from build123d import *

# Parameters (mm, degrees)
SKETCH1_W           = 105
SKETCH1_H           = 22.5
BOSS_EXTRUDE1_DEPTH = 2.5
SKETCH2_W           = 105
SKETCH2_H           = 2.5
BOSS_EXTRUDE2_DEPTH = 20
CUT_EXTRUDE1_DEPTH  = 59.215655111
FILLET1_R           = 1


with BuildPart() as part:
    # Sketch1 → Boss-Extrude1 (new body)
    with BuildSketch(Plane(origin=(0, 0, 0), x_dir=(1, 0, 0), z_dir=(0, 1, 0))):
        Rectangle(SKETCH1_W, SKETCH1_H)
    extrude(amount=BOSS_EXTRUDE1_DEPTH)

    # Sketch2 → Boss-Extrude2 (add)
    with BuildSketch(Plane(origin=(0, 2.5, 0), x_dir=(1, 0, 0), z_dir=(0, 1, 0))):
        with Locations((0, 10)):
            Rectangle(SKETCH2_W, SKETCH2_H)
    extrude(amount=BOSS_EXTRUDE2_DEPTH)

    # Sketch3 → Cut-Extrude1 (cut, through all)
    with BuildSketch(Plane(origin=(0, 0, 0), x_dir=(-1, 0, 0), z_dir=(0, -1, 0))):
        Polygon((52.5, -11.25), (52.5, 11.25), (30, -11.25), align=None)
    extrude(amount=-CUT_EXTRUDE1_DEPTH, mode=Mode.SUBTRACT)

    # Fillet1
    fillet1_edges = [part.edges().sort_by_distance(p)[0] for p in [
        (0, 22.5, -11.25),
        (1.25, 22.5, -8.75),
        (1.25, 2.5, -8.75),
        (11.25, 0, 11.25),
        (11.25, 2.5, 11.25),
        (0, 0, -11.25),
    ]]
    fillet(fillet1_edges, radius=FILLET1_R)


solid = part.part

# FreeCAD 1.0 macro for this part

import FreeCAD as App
import Part
import Sketcher
Q = App.Units.Quantity


def edges_at(feature, points):
    """Names of the edges that pass closest to the given points."""
    edges = feature.Shape.Edges
    near = lambda p: min(range(len(edges)), key=lambda i: edges[i].distToShape(Part.Vertex(*p))[0])
    return sorted({f"Edge{near(p) + 1}" for p in points})

doc = App.newDocument("Part")
body = doc.addObject("PartDesign::Body", "Body")

# Sketch on XZ plane
sketch1 = doc.addObject("Sketcher::SketchObject", "Sketch")
body.addObject(sketch1)
sketch1.AttachmentSupport = (doc.XZ_Plane, [""])
sketch1.MapMode = "FlatFace"
sketch1.addGeometry(Part.LineSegment(App.Vector(-52, -11, 0), App.Vector(-52, 11, 0)), False)
sketch1.addGeometry(Part.LineSegment(App.Vector(-52, 11, 0), App.Vector(52, 11, 0)), False)
sketch1.addGeometry(Part.LineSegment(App.Vector(52, 11, 0), App.Vector(52, -11, 0)), False)
sketch1.addGeometry(Part.LineSegment(App.Vector(52, -11, 0), App.Vector(-52, -11, 0)), False)
sketch1.addConstraint(Sketcher.Constraint("Coincident", 0, 2, 1, 1))
sketch1.addConstraint(Sketcher.Constraint("Coincident", 1, 2, 2, 1))
sketch1.addConstraint(Sketcher.Constraint("Coincident", 2, 2, 3, 1))
sketch1.addConstraint(Sketcher.Constraint("Coincident", 3, 2, 0, 1))
sketch1.addConstraint(Sketcher.Constraint("Vertical", 0))
sketch1.addConstraint(Sketcher.Constraint("Horizontal", 1))
sketch1.addConstraint(Sketcher.Constraint("Vertical", 2))
sketch1.addConstraint(Sketcher.Constraint("Horizontal", 3))
sketch1.addConstraint(Sketcher.Constraint("Symmetric", 0, 2, 2, 2, -1, 1))
sketch1.addConstraint(Sketcher.Constraint("DistanceX", 1, 1, 1, 2, Q("105 mm")))
sketch1.addConstraint(Sketcher.Constraint("DistanceY", 0, 1, 0, 2, Q("22.5 mm")))
pad1 = doc.addObject("PartDesign::Pad", "Pad")
body.addObject(pad1)
pad1.Profile = sketch1
pad1.Length = 2.5
pad1.Reversed = True

# Sketch on XZ plane
sketch2 = doc.addObject("Sketcher::SketchObject", "Sketch001")
body.addObject(sketch2)
sketch2.AttachmentSupport = (doc.XZ_Plane, [""])
sketch2.MapMode = "FlatFace"
sketch2.AttachmentOffset = App.Placement(App.Vector(0, 0, -2.5), App.Rotation())
sketch2.addGeometry(Part.LineSegment(App.Vector(-52.5, -11.2, 0), App.Vector(-52.5, -8.8, 0)), False)
sketch2.addGeometry(Part.LineSegment(App.Vector(-52.5, -8.8, 0), App.Vector(52.5, -8.8, 0)), False)
sketch2.addGeometry(Part.LineSegment(App.Vector(52.5, -8.8, 0), App.Vector(52.5, -11.2, 0)), False)
sketch2.addGeometry(Part.LineSegment(App.Vector(52.5, -11.2, 0), App.Vector(-52.5, -11.2, 0)), False)
sketch2.addConstraint(Sketcher.Constraint("Coincident", 0, 2, 1, 1))
sketch2.addConstraint(Sketcher.Constraint("Coincident", 1, 2, 2, 1))
sketch2.addConstraint(Sketcher.Constraint("Coincident", 2, 2, 3, 1))
sketch2.addConstraint(Sketcher.Constraint("Coincident", 3, 2, 0, 1))
sketch2.addConstraint(Sketcher.Constraint("Vertical", 0))
sketch2.addConstraint(Sketcher.Constraint("Horizontal", 1))
sketch2.addConstraint(Sketcher.Constraint("Vertical", 2))
sketch2.addConstraint(Sketcher.Constraint("Horizontal", 3))
sketch2.addConstraint(Sketcher.Constraint("DistanceX", 1, 1, 1, 2, Q("105 mm")))
sketch2.addConstraint(Sketcher.Constraint("DistanceY", 0, 1, 0, 2, Q("2.5 mm")))
sketch2.addConstraint(Sketcher.Constraint("DistanceX", 0, 2, -1, 1, Q("52.5 mm")))
sketch2.addConstraint(Sketcher.Constraint("DistanceY", 0, 2, -1, 1, Q("8.75 mm")))
pad2 = doc.addObject("PartDesign::Pad", "Pad001")
body.addObject(pad2)
pad2.Profile = sketch2
pad2.Length = 20
pad2.Reversed = True

# Sketch on XZ plane
sketch3 = doc.addObject("Sketcher::SketchObject", "Sketch002")
body.addObject(sketch3)
sketch3.AttachmentSupport = (doc.XZ_Plane, [""])
sketch3.MapMode = "FlatFace"
sketch3.addGeometry(Part.LineSegment(App.Vector(-52, 11, 0), App.Vector(-52, -11, 0)), False)
sketch3.addGeometry(Part.LineSegment(App.Vector(-52, -11, 0), App.Vector(-30, 11, 0)), False)
sketch3.addGeometry(Part.LineSegment(App.Vector(-30, 11, 0), App.Vector(-52, 11, 0)), False)
sketch3.addConstraint(Sketcher.Constraint("Coincident", 0, 2, 1, 1))
sketch3.addConstraint(Sketcher.Constraint("Coincident", 1, 2, 2, 1))
sketch3.addConstraint(Sketcher.Constraint("Coincident", 2, 2, 0, 1))
sketch3.addConstraint(Sketcher.Constraint("Vertical", 0))
sketch3.addConstraint(Sketcher.Constraint("Horizontal", 2))
sketch3.addConstraint(Sketcher.Constraint("Equal", 2, 0))
sketch3.addConstraint(Sketcher.Constraint("DistanceX", 2, 2, 2, 1, Q("22.5 mm")))
sketch3.addConstraint(Sketcher.Constraint("DistanceX", 1, 2, -1, 1, Q("30 mm")))
sketch3.addConstraint(Sketcher.Constraint("DistanceY", 0, 2, -1, 1, Q("11.25 mm")))
pocket1 = doc.addObject("PartDesign::Pocket", "Pocket")
body.addObject(pocket1)
pocket1.Profile = sketch3
pocket1.Type = "ThroughAll"
doc.recompute()

fillet = doc.addObject("PartDesign::Fillet", "Fillet")
body.addObject(fillet)
fillet.Base = (pocket1, edges_at(pocket1, [
    (0, 22.5, -11.25),
    (1.25, 22.5, -8.75),
    (1.25, 2.5, -8.75),
    (11.25, 0, 11.25),
    (11.25, 2.5, 11.25),
    (0, 0, -11.25),
]))
fillet.Radius = 1

doc.recompute()
